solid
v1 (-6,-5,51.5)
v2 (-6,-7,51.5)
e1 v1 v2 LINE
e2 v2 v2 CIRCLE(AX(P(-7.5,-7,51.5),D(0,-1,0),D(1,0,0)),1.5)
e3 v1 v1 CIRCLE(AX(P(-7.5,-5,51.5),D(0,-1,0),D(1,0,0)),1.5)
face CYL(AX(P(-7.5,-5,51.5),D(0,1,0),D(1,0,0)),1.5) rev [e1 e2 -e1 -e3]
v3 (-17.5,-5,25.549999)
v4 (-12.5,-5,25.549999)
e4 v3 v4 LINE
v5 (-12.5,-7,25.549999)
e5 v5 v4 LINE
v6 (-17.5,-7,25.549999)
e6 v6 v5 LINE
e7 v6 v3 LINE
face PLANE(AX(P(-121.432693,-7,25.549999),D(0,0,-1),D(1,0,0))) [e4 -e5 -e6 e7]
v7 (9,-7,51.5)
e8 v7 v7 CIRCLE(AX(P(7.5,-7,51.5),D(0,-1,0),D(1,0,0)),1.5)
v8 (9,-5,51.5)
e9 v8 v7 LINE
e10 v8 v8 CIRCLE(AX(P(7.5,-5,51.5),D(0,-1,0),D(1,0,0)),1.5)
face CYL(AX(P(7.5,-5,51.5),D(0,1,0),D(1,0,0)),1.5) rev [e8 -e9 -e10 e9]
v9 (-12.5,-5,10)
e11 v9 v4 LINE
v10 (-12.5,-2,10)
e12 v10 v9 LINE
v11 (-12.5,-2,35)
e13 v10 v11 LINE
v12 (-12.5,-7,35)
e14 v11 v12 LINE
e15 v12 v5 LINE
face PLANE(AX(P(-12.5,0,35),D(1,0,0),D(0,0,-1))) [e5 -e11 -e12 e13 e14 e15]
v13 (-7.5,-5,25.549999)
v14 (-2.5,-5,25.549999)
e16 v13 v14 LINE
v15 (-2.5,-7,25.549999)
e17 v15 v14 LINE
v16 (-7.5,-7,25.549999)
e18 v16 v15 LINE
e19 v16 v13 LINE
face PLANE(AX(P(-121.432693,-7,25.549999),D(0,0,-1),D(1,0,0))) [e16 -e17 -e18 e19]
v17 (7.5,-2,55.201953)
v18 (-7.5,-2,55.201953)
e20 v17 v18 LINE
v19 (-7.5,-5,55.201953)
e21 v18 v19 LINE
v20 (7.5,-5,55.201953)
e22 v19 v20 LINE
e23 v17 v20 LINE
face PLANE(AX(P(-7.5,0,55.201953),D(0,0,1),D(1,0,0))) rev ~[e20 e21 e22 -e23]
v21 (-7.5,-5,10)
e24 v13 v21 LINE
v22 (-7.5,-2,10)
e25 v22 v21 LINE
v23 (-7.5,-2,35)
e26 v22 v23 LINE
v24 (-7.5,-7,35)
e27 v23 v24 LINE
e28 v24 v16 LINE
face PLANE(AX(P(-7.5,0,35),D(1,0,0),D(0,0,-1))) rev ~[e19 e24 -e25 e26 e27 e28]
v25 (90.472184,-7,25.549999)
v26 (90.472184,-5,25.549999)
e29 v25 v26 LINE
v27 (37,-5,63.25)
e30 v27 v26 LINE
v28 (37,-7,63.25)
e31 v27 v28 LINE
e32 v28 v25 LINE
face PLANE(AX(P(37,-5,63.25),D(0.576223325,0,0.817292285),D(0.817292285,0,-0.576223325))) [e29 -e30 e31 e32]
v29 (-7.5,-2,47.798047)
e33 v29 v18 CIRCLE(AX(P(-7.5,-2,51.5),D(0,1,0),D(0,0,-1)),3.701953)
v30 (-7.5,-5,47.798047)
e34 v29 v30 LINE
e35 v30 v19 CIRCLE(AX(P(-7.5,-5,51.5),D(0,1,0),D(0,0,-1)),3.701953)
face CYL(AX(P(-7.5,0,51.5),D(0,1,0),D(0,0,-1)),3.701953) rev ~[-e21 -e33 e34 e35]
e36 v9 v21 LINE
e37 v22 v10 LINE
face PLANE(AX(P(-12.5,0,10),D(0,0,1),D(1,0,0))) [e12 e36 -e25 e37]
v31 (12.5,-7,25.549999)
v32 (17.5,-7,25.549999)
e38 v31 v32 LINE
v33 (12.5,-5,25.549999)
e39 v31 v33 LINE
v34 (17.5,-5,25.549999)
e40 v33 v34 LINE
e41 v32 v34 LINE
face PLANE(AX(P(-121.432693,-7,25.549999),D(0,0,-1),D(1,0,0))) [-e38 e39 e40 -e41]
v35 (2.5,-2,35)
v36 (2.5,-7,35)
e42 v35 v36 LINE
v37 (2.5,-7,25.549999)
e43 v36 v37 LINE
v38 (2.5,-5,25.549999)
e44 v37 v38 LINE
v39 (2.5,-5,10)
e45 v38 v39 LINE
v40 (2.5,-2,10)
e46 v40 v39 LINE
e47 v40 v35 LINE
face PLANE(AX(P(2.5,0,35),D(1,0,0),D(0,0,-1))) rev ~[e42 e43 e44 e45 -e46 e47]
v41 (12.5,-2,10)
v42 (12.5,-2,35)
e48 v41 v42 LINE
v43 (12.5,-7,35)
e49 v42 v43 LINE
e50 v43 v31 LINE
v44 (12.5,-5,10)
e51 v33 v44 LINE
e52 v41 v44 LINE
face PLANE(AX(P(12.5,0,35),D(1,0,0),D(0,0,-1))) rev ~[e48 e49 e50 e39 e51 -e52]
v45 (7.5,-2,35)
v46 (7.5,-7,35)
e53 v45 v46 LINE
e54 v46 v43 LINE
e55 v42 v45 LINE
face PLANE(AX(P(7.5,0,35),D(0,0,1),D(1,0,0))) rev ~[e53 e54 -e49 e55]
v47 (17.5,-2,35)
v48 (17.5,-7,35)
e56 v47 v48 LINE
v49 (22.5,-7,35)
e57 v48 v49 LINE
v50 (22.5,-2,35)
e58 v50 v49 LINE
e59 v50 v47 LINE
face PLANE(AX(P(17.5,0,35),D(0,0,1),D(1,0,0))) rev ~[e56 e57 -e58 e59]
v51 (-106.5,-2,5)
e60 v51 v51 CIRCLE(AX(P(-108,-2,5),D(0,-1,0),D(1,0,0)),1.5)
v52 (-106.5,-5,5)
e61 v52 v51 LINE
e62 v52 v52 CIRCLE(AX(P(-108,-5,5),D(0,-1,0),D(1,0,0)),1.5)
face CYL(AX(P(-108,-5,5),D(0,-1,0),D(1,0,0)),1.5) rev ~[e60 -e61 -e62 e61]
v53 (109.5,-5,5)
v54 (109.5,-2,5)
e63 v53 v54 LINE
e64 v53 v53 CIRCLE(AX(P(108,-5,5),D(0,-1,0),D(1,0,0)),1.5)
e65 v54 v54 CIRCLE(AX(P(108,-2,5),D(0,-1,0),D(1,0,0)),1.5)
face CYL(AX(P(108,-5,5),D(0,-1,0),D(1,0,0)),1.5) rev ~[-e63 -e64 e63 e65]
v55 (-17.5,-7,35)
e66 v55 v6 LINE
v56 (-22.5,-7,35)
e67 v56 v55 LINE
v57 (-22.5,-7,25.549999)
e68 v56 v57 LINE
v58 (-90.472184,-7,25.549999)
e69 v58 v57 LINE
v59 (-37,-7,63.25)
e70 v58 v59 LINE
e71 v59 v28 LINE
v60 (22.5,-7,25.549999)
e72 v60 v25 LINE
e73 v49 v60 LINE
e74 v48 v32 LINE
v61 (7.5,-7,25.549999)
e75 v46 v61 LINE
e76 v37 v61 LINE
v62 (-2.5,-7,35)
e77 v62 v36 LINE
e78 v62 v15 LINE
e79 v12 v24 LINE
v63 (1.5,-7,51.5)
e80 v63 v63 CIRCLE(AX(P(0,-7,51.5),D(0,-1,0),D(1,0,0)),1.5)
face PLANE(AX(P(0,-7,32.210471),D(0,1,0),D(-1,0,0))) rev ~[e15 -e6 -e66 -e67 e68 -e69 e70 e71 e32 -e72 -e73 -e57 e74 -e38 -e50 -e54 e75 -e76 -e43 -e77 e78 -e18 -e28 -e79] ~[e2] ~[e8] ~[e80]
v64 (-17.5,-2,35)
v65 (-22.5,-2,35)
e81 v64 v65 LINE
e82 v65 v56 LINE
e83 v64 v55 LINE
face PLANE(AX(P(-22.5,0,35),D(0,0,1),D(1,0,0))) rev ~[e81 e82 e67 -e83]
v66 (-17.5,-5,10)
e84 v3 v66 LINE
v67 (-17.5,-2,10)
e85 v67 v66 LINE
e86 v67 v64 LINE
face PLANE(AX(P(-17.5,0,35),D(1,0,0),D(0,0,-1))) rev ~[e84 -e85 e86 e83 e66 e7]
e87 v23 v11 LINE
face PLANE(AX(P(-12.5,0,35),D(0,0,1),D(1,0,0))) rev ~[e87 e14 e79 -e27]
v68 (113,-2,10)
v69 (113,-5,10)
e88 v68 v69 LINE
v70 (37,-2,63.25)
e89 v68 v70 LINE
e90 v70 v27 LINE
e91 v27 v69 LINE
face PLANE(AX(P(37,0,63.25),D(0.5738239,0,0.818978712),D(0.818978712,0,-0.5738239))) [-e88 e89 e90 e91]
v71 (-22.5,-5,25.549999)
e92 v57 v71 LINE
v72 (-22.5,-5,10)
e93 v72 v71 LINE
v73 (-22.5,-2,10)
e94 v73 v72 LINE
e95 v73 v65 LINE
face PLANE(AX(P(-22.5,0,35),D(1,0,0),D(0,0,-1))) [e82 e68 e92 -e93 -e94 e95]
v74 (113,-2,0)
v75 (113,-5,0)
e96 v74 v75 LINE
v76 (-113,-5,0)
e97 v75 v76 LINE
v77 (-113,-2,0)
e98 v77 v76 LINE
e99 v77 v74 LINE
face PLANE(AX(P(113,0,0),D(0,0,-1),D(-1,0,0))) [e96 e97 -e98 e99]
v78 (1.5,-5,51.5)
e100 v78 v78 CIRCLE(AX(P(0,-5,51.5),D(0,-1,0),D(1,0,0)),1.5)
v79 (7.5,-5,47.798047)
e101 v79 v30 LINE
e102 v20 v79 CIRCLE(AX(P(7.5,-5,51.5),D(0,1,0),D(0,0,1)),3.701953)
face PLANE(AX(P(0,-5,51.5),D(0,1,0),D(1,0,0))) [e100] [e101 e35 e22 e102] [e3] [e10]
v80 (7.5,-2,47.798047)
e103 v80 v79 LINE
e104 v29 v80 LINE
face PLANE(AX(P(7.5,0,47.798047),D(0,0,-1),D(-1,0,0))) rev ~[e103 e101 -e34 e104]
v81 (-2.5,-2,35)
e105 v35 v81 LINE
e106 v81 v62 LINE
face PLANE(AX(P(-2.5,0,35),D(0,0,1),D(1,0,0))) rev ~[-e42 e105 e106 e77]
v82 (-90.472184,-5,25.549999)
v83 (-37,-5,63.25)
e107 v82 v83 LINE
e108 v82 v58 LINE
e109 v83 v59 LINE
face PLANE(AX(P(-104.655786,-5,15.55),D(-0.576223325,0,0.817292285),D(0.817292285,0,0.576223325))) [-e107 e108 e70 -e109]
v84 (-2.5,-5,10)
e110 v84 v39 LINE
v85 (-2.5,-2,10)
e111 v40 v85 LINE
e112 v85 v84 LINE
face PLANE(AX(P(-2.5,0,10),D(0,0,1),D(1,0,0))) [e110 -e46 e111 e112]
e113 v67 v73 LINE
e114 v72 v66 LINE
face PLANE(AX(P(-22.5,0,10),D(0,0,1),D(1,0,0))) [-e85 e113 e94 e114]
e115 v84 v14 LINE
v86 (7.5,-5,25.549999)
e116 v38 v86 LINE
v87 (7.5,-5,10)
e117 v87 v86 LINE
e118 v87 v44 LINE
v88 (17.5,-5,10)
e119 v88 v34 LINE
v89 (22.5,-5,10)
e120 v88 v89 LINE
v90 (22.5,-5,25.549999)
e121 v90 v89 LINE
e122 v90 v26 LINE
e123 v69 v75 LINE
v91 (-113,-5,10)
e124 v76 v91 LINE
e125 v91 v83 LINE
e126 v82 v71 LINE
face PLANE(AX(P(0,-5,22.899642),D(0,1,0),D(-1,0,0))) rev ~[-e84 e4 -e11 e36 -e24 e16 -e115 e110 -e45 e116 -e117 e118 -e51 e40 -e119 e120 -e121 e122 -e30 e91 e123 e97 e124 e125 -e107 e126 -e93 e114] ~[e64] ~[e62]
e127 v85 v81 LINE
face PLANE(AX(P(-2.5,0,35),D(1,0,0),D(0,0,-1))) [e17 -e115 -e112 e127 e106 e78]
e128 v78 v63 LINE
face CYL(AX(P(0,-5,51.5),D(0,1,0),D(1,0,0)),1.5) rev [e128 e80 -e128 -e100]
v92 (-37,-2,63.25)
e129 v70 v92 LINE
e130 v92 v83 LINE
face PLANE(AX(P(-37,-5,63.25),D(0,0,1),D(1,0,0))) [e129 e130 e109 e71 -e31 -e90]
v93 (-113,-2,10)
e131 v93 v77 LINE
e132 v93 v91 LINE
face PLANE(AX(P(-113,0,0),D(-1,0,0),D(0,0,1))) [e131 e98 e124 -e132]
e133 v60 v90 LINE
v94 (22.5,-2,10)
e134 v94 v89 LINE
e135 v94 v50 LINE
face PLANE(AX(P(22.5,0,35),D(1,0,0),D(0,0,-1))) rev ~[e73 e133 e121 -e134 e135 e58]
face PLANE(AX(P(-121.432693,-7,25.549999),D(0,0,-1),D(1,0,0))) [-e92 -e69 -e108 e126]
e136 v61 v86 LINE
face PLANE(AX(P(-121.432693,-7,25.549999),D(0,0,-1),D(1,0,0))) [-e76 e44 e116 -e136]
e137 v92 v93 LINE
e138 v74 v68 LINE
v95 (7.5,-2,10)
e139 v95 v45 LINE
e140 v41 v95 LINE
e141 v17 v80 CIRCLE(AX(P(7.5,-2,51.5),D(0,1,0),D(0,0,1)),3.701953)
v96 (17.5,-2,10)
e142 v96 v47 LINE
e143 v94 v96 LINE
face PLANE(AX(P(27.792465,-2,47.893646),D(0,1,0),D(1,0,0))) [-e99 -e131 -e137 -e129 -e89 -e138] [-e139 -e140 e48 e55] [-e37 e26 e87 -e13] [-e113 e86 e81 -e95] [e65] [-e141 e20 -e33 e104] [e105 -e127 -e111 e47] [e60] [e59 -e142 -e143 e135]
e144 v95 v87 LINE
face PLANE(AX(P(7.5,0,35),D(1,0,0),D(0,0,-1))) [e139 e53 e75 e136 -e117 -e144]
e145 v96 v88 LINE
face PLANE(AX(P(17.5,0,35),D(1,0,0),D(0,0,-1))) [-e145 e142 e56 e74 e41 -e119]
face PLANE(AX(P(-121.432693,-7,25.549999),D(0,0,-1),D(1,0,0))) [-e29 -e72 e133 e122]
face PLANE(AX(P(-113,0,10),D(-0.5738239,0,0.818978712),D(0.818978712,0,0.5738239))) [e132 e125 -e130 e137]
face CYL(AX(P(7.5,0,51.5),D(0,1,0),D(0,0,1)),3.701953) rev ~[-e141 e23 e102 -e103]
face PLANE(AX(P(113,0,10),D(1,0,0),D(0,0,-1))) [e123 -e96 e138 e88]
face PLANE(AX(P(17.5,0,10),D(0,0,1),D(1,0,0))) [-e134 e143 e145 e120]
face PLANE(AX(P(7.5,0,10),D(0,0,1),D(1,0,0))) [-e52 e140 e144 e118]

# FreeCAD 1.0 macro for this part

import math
import FreeCAD as App
import Part
import Sketcher

V = App.Vector


def add_polygon(sketch, points):
    """Adds a closed chain of lines whose ends are joined by coincident constraints."""
    first, n = sketch.GeometryCount, len(points)
    for a, b in zip(points, points[1:] + points[:1]):
        sketch.addGeometry(Part.LineSegment(App.Vector(*a, 0), App.Vector(*b, 0)), False)
    for i in range(n):
        sketch.addConstraint(Sketcher.Constraint("Coincident", first + i, 2, first + (i + 1) % n, 1))

doc = App.newDocument("Part")
body = doc.addObject("PartDesign::Body", "Body")

# Sketch on XZ plane
sketch1 = body.newObject("Sketcher::SketchObject", "Sketch")
sketch1.AttachmentSupport = (doc.getObject("XZ_Plane"), [""])
sketch1.MapMode = "FlatFace"
add_polygon(sketch1, [(37, 63), (-37, 63), (-113, 10), (-113, 0), (113, 0), (113, 10)])  # lines 0-5
sketch1.addConstraint([
    Sketcher.Constraint("Horizontal", 0),
    Sketcher.Constraint("Vertical", 2),
    Sketcher.Constraint("Horizontal", 3),
    Sketcher.Constraint("Vertical", 4),
    Sketcher.Constraint("Symmetric", 2, 2, 3, 2, -1, 1),
    Sketcher.Constraint("Horizontal", 1, 2, 4, 2),
    Sketcher.Constraint("Equal", 1, 5),
    Sketcher.Constraint("DistanceX", 0, 2, 0, 1, 74.0),
    Sketcher.Constraint("DistanceX", 3, 1, 3, 2, 226.0),
    Sketcher.Constraint("DistanceY", 2, 2, 2, 1, 10.0),
    Sketcher.Constraint("DistanceY", -1, 1, 0, 2, 63.25),
])
pad1 = body.newObject("PartDesign::Pad", "Pad")
pad1.Profile = sketch1
pad1.Length = 5

# Sketch on XZ plane
sketch2 = body.newObject("Sketcher::SketchObject", "Sketch001")
sketch2.AttachmentSupport = (doc.getObject("XZ_Plane"), [""])
sketch2.MapMode = "FlatFace"
sketch2.AttachmentOffset = App.Placement(V(0, 0, 5), App.Rotation())
sketch2.addGeometry([
    Part.Circle(V(-108, 5, 0), V(0, 0, 1), 1.5),  # 0
    Part.Circle(V(108, 5, 0), V(0, 0, 1), 1.5),  # 1
    Part.Circle(V(-7.5, 51.5, 0), V(0, 0, 1), 1.5),  # 2
    Part.Circle(V(0, 51.5, 0), V(0, 0, 1), 1.5),  # 3
    Part.Circle(V(7.5, 51.5, 0), V(0, 0, 1), 1.5),  # 4
], False)
sketch2.addConstraint([
    Sketcher.Constraint("Equal", 0, 1),
    Sketcher.Constraint("Equal", 1, 2),
    Sketcher.Constraint("Equal", 2, 3),
    Sketcher.Constraint("Equal", 3, 4),
    Sketcher.Constraint("Symmetric", 0, 3, 1, 3, -2),
    Sketcher.Constraint("Symmetric", 2, 3, 4, 3, -2),
    Sketcher.Constraint("PointOnObject", 3, 3, -2),
    Sketcher.Constraint("Horizontal", 2, 3, 3, 3),
    Sketcher.Constraint("Diameter", 0, 3.0),
    Sketcher.Constraint("DistanceX", 0, 3, -1, 1, 108.0),
    Sketcher.Constraint("DistanceY", -1, 1, 0, 3, 5.0),
    Sketcher.Constraint("DistanceX", 2, 3, 4, 3, 15.0),
    Sketcher.Constraint("DistanceY", -1, 1, 2, 3, 51.5),
])
pocket1 = body.newObject("PartDesign::Pocket", "Pocket")
pocket1.Profile = sketch2
pocket1.Type = "ThroughAll"

# Sketch on XZ plane
sketch3 = body.newObject("Sketcher::SketchObject", "Sketch002")
sketch3.AttachmentSupport = (doc.getObject("XZ_Plane"), [""])
sketch3.MapMode = "FlatFace"
sketch3.AttachmentOffset = App.Placement(V(0, 0, 5), App.Rotation())
add_polygon(sketch3, [(37, 63.2), (-37, 63.2), (-104.7, 15.6), (104.7, 15.6)])  # lines 0-3
sketch3.addGeometry(Part.Circle(V(7.5, 51.5, 0), V(0, 0, 1), 1.5), False)  # 4
sketch3.addGeometry(Part.Circle(V(0, 51.5, 0), V(0, 0, 1), 1.5), False)  # 5
sketch3.addGeometry(Part.Circle(V(-7.5, 51.5, 0), V(0, 0, 1), 1.5), False)  # 6
sketch3.addConstraint([
    Sketcher.Constraint("Horizontal", 0),
    Sketcher.Constraint("Horizontal", 2),
    Sketcher.Constraint("Equal", 4, 5),
    Sketcher.Constraint("Equal", 5, 6),
    Sketcher.Constraint("Symmetric", 4, 3, 6, 3, -2),
    Sketcher.Constraint("PointOnObject", 5, 3, -2),
    Sketcher.Constraint("Horizontal", 4, 3, 5, 3),
    Sketcher.Constraint("Equal", 1, 3),
    Sketcher.Constraint("Diameter", 4, 3.0),
    Sketcher.Constraint("DistanceX", 0, 2, 0, 1, 74.0),
    Sketcher.Constraint("DistanceX", 0, 2, -1, 1, 37.0),
    Sketcher.Constraint("DistanceX", 6, 3, 4, 3, 15.0),
    Sketcher.Constraint("DistanceY", -1, 1, 4, 3, 51.5),
    Sketcher.Constraint("DistanceY", 1, 2, 0, 2, 47.7),
    Sketcher.Constraint("DistanceY", -1, 1, 0, 2, 63.25),
    Sketcher.Constraint("DistanceX", 2, 1, 2, 2, 209.311572),
])
pad2 = body.newObject("PartDesign::Pad", "Pad001")
pad2.Profile = sketch3
pad2.Length = 2

# Sketch on XZ plane
sketch4 = body.newObject("Sketcher::SketchObject", "Sketch003")
sketch4.AttachmentSupport = (doc.getObject("XZ_Plane"), [""])
sketch4.MapMode = "FlatFace"
sketch4.addGeometry([
    Part.ArcOfCircle(Part.Circle(V(-7.5, 51.5, 0), V(0, 0, 1), 3.7), math.radians(90), math.radians(270)),
    Part.LineSegment(V(-7.5, 55.2, 0), V(7.5, 55.2, 0)),
    Part.ArcOfCircle(Part.Circle(V(7.5, 51.5, 0), V(0, 0, 1), 3.7), math.radians(-90), math.radians(90)),
    Part.LineSegment(V(7.5, 47.8, 0), V(-7.5, 47.8, 0)),
], False)
sketch4.addConstraint([
    Sketcher.Constraint("Tangent", 0, 1, 1, 1),
    Sketcher.Constraint("Tangent", 1, 2, 2, 2),
    Sketcher.Constraint("Tangent", 2, 1, 3, 1),
    Sketcher.Constraint("Tangent", 3, 2, 0, 2),
    Sketcher.Constraint("Horizontal", 1),
    Sketcher.Constraint("Horizontal", 3),
    Sketcher.Constraint("DistanceX", 1, 1, 1, 2, 15.0),
    Sketcher.Constraint("DistanceX", 0, 3, -1, 1, 7.5),
    Sketcher.Constraint("DistanceY", -1, 1, 0, 3, 51.5),
    Sketcher.Constraint("Radius", 0, 3.701953),
])
pocket2 = body.newObject("PartDesign::Pocket", "Pocket001")
pocket2.Profile = sketch4
pocket2.Length = 5
pocket2.Reversed = True

# Sketch on XZ plane
sketch5 = body.newObject("Sketcher::SketchObject", "Sketch004")
sketch5.AttachmentSupport = (doc.getObject("XZ_Plane"), [""])
sketch5.MapMode = "FlatFace"
add_polygon(sketch5, [(-22, 10), (-22, 35), (-18, 35), (-18, 10)])  # lines 0-3
add_polygon(sketch5, [(-2, 10), (-2, 35), (2, 35), (2, 10)])  # lines 4-7
add_polygon(sketch5, [(8, 10), (8, 35), (12, 35), (12, 10)])  # lines 8-11
add_polygon(sketch5, [(18, 10), (18, 35), (22, 35), (22, 10)])  # lines 12-15
add_polygon(sketch5, [(-12, 10), (-12, 35), (-8, 35), (-8, 10)])  # lines 16-19
sketch5.addConstraint([
    Sketcher.Constraint("Vertical", 0),
    Sketcher.Constraint("Horizontal", 1),
    Sketcher.Constraint("Vertical", 2),
    Sketcher.Constraint("Horizontal", 3),
    Sketcher.Constraint("Vertical", 4),
    Sketcher.Constraint("Horizontal", 5),
    Sketcher.Constraint("Vertical", 6),
    Sketcher.Constraint("Horizontal", 7),
    Sketcher.Constraint("Vertical", 8),
    Sketcher.Constraint("Horizontal", 9),
    Sketcher.Constraint("Vertical", 10),
    Sketcher.Constraint("Horizontal", 11),
    Sketcher.Constraint("Vertical", 12),
    Sketcher.Constraint("Horizontal", 13),
    Sketcher.Constraint("Vertical", 14),
    Sketcher.Constraint("Horizontal", 15),
    Sketcher.Constraint("Vertical", 16),
    Sketcher.Constraint("Horizontal", 17),
    Sketcher.Constraint("Vertical", 18),
    Sketcher.Constraint("Horizontal", 19),
    Sketcher.Constraint("Symmetric", 1, 2, 12, 2, -2),
    Sketcher.Constraint("Symmetric", 3, 2, 14, 2, -2),
    Sketcher.Constraint("Symmetric", 9, 2, 16, 2, -2),
    Sketcher.Constraint("Symmetric", 11, 2, 18, 2, -2),
    Sketcher.Constraint("Horizontal", 1, 2, 4, 2),
    Sketcher.Constraint("Horizontal", 3, 2, 6, 2),
    Sketcher.Constraint("Horizontal", 5, 2, 8, 2),
    Sketcher.Constraint("Horizontal", 7, 2, 10, 2),
    Sketcher.Constraint("Equal", 3, 5),
    Sketcher.Constraint("Equal", 7, 9),
    Sketcher.Constraint("DistanceX", 1, 1, 1, 2, 5.0),
    Sketcher.Constraint("DistanceY", 0, 1, 0, 2, 25.0),
    Sketcher.Constraint("DistanceY", -1, 1, 0, 2, 35.0),
    Sketcher.Constraint("DistanceX", 1, 2, 4, 2, 15.0),
    Sketcher.Constraint("DistanceX", 5, 2, 8, 2, 5.0),
    Sketcher.Constraint("DistanceX", 9, 2, 12, 2, 5.0),
])
pocket3 = body.newObject("PartDesign::Pocket", "Pocket002")
pocket3.Profile = sketch5
pocket3.Type = "ThroughAll"
pocket3.Reversed = True

# Sketch on XZ plane
sketch6 = body.newObject("Sketcher::SketchObject", "Sketch005")
sketch6.AttachmentSupport = (doc.getObject("XZ_Plane"), [""])
sketch6.MapMode = "FlatFace"
sketch6.AttachmentOffset = App.Placement(V(0, 0, 7), App.Rotation())
add_polygon(sketch6, [(-121, 26), (-121, -7), (122, -7), (122, 26)])  # lines 0-3
sketch6.addConstraint([
    Sketcher.Constraint("Vertical", 0),
    Sketcher.Constraint("Horizontal", 1),
    Sketcher.Constraint("Vertical", 2),
    Sketcher.Constraint("Horizontal", 3),
    Sketcher.Constraint("DistanceY", -1, 1, 2, 2, 25.549999),
    Sketcher.Constraint("DistanceX", 1, 1, 1, 2, 243.085243),
    Sketcher.Constraint("DistanceY", 0, 2, 0, 1, 32.517023),
    Sketcher.Constraint("DistanceX", -1, 1, 1, 2, 121.65255),
])
pocket4 = body.newObject("PartDesign::Pocket", "Pocket003")
pocket4.Profile = sketch6
pocket4.Length = 2

# Sketch on XZ plane
sketch7 = body.newObject("Sketcher::SketchObject", "Sketch006")
sketch7.AttachmentSupport = (doc.getObject("XZ_Plane"), [""])
sketch7.MapMode = "FlatFace"
add_polygon(sketch7, [(-134, -41), (-134, 137), (190, 137), (190, -41)])  # lines 0-3
sketch7.addConstraint([
    Sketcher.Constraint("Vertical", 0),
    Sketcher.Constraint("Horizontal", 1),
    Sketcher.Constraint("Vertical", 2),
    Sketcher.Constraint("Horizontal", 3),
    Sketcher.Constraint("DistanceY", 0, 1, 0, 2, 177.952698),
    Sketcher.Constraint("DistanceX", 0, 2, -1, 1, 134.283401),
    Sketcher.Constraint("DistanceX", 1, 1, 1, 2, 324.151733),
    Sketcher.Constraint("DistanceY", -1, 1, 0, 2, 136.869995),
])
pocket5 = body.newObject("PartDesign::Pocket", "Pocket004")
pocket5.Profile = sketch7
pocket5.Length = 2
pocket5.Reversed = True

doc.recompute()
